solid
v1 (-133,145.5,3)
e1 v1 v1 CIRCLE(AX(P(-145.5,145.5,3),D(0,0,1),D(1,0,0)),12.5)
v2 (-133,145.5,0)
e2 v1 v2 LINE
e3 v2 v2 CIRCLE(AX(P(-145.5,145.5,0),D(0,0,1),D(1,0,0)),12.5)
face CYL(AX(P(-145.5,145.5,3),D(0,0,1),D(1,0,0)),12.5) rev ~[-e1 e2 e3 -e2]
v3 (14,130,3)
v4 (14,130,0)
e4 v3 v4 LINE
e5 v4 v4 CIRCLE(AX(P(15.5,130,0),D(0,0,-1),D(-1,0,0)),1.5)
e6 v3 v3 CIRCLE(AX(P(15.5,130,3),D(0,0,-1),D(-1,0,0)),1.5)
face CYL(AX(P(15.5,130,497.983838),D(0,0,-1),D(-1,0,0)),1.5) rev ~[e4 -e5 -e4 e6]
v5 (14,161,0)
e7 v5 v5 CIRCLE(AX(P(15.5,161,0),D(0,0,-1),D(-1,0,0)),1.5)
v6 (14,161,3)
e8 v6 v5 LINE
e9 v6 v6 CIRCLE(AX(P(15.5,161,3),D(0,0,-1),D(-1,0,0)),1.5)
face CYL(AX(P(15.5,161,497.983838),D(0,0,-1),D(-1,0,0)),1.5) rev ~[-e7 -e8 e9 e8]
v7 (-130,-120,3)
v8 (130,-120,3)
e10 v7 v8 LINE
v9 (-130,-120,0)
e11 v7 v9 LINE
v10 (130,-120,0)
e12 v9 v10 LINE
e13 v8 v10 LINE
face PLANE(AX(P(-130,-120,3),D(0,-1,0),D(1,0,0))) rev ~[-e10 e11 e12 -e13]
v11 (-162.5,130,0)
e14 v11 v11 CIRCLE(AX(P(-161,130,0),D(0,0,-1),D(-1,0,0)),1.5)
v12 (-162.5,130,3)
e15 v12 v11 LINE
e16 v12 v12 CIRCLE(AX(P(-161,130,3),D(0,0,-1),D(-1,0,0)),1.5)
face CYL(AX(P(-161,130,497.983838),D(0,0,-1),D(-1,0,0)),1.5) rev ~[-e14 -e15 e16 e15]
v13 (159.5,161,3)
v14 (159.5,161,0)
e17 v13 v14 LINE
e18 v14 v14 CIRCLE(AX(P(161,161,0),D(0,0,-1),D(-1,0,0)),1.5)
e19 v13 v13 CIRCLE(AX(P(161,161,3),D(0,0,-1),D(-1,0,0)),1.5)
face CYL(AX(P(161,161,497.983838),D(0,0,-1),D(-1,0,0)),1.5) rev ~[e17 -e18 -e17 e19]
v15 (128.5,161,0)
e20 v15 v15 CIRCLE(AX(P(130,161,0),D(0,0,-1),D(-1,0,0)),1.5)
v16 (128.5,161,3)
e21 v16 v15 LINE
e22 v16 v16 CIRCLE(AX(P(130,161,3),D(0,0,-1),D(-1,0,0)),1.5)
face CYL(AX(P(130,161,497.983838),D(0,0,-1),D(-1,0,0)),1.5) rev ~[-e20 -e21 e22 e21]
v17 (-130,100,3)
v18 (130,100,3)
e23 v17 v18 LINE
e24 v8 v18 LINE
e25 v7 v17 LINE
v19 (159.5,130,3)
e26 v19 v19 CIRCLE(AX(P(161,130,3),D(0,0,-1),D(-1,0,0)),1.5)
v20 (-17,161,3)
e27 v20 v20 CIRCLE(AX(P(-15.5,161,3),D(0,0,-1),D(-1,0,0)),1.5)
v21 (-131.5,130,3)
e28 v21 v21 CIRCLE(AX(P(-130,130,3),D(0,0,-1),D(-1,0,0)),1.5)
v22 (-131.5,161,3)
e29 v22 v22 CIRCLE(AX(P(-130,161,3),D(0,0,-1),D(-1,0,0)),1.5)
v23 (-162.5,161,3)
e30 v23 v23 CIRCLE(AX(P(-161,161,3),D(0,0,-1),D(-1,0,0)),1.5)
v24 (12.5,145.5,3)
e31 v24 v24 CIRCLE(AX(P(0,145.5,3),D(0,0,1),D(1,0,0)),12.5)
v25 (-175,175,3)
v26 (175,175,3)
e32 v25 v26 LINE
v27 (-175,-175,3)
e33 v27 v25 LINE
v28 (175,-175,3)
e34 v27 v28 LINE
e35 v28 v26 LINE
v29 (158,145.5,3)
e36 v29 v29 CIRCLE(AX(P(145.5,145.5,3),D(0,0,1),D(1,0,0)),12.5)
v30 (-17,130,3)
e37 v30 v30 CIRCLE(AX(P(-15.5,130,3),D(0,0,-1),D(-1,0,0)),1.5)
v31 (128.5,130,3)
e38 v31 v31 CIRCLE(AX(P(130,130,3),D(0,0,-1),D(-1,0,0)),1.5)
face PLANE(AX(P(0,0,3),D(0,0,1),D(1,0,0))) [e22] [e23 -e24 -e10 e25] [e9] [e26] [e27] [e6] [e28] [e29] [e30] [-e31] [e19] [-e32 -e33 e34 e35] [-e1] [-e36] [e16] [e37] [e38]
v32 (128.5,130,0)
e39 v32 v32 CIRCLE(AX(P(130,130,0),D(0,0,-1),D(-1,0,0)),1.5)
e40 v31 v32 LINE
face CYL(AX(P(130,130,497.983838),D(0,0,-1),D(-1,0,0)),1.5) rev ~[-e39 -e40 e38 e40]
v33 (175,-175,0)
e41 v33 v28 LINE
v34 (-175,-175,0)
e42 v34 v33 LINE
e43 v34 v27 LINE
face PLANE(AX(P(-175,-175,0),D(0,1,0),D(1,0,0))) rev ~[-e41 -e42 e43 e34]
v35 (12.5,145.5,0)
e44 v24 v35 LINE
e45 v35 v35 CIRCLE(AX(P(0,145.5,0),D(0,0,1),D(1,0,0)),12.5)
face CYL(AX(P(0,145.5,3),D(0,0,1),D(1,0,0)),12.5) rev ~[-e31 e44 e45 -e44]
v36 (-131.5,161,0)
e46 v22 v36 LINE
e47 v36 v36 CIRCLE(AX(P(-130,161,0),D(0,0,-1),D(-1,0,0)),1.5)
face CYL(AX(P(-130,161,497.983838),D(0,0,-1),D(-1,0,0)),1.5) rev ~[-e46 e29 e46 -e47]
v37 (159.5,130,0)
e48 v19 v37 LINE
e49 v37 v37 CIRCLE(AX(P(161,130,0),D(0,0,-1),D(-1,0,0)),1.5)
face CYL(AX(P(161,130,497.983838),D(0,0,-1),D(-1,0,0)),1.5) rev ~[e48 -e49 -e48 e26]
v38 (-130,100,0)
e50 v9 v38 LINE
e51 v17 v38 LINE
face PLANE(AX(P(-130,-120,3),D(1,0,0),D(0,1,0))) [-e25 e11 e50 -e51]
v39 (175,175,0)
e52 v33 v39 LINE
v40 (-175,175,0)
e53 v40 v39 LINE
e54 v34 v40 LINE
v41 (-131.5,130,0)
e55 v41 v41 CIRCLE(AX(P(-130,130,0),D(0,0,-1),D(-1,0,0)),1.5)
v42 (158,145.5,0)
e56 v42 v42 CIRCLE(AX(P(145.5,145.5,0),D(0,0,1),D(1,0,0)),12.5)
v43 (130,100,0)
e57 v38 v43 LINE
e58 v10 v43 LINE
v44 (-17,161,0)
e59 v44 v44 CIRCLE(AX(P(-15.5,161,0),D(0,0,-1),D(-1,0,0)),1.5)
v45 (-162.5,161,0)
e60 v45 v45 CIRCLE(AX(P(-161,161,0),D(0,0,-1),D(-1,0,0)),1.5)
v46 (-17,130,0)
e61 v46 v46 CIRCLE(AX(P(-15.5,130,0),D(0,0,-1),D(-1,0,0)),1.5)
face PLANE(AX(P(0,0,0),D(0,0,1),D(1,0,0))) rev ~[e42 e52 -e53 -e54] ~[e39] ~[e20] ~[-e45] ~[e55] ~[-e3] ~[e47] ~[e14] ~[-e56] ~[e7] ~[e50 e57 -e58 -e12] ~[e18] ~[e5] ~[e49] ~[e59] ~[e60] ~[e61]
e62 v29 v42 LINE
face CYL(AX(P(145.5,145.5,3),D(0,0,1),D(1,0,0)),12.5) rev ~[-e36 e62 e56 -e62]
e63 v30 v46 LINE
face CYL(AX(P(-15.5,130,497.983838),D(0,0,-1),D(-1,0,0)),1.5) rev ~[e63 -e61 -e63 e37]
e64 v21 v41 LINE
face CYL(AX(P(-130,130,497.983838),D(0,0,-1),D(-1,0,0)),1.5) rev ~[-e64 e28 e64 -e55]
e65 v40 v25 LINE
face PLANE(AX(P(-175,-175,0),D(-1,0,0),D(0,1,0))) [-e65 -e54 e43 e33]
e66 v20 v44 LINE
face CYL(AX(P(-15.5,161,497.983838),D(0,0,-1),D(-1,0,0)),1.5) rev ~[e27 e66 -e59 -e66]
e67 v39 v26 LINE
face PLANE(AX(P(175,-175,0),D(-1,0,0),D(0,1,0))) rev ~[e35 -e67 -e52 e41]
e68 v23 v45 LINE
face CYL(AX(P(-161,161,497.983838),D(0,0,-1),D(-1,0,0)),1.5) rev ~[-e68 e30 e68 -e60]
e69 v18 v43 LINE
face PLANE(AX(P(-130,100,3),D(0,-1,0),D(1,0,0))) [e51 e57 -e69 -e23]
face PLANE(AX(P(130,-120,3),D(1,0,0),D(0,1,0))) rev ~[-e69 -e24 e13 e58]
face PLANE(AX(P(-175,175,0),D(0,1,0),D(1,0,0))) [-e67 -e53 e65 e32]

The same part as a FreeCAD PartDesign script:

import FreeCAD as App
import Part
import Sketcher

V = App.Vector

doc = App.newDocument("Part")
params = doc.addObject("Spreadsheet::Sheet", "Params")
for row, (alias, value) in enumerate([
    ("sketch1_width", "350 mm"),
    ("pad1_length", "3 mm"),
    ("sketch2_width", "260 mm"),
    ("sketch2_height", "220 mm"),
    ("pocket1_length", "25 mm"),
    ("sketch3_diameter", "3 mm"),
    ("hole_diameter", "3 mm"),
    ("sketch4_diameter", "25 mm"),
    ("pocket2_length", "25 mm"),
], start=1):
    params.set(f"A{row}", alias)
    params.set(f"B{row}", "=" + value)
    params.setAlias(f"B{row}", alias)

body = doc.addObject("PartDesign::Body", "Body")

# Sketch on XY plane
sketch1 = body.newObject("Sketcher::SketchObject", "Sketch")
sketch1.AttachmentSupport = (doc.getObject("XY_Plane"), [""])
sketch1.MapMode = "FlatFace"
sketch1.addGeometry([
    Part.LineSegment(V(-175, 175, 0), V(-175, -175, 0)),
    Part.LineSegment(V(-175, -175, 0), V(175, -175, 0)),
    Part.LineSegment(V(175, -175, 0), V(175, 175, 0)),
    Part.LineSegment(V(175, 175, 0), V(-175, 175, 0)),
], False)
sketch1.addConstraint([
    Sketcher.Constraint("Coincident", 0, 2, 1, 1),
    Sketcher.Constraint("Coincident", 1, 2, 2, 1),
    Sketcher.Constraint("Coincident", 2, 2, 3, 1),
    Sketcher.Constraint("Coincident", 3, 2, 0, 1),
    Sketcher.Constraint("Vertical", 0),
    Sketcher.Constraint("Horizontal", 1),
    Sketcher.Constraint("Vertical", 2),
    Sketcher.Constraint("Horizontal", 3),
    Sketcher.Constraint("Symmetric", 0, 2, 2, 2, -1, 1),
    Sketcher.Constraint("Equal", 3, 0),
    Sketcher.Constraint("DistanceX", 1, 1, 1, 2, 350.0),
])
sketch1.setExpression("Constraints[10]", "Params.sketch1_width")
pad1 = body.newObject("PartDesign::Pad", "Pad")
pad1.Profile = sketch1
pad1.setExpression("Length", "Params.pad1_length")

# Sketch on XY plane
sketch2 = body.newObject("Sketcher::SketchObject", "Sketch001")
sketch2.AttachmentSupport = (doc.getObject("XY_Plane"), [""])
sketch2.MapMode = "FlatFace"
sketch2.AttachmentOffset = App.Placement(V(0, 0, 3), App.Rotation())
sketch2.addGeometry([
    Part.LineSegment(V(-130, 100, 0), V(-130, -120, 0)),
    Part.LineSegment(V(-130, -120, 0), V(130, -120, 0)),
    Part.LineSegment(V(130, -120, 0), V(130, 100, 0)),
    Part.LineSegment(V(130, 100, 0), V(-130, 100, 0)),
], False)
sketch2.addConstraint([
    Sketcher.Constraint("Coincident", 0, 2, 1, 1),
    Sketcher.Constraint("Coincident", 1, 2, 2, 1),
    Sketcher.Constraint("Coincident", 2, 2, 3, 1),
    Sketcher.Constraint("Coincident", 3, 2, 0, 1),
    Sketcher.Constraint("Vertical", 0),
    Sketcher.Constraint("Horizontal", 1),
    Sketcher.Constraint("Vertical", 2),
    Sketcher.Constraint("Horizontal", 3),
    Sketcher.Constraint("DistanceX", 1, 1, 1, 2, 260.0),
    Sketcher.Constraint("DistanceY", 0, 2, 0, 1, 220.0),
    Sketcher.Constraint("DistanceX", 0, 2, -1, 1, 130.0),
    Sketcher.Constraint("DistanceY", 0, 2, -1, 1, 120.0),
])
sketch2.setExpression("Constraints[8]", "Params.sketch2_width")
sketch2.setExpression("Constraints[9]", "Params.sketch2_height")
pocket1 = body.newObject("PartDesign::Pocket", "Pocket")
pocket1.Profile = sketch2
pocket1.setExpression("Length", "Params.pocket1_length")

# Sketch on XY plane
sketch3 = body.newObject("Sketcher::SketchObject", "Sketch002")
sketch3.AttachmentSupport = (doc.getObject("XY_Plane"), [""])
sketch3.MapMode = "FlatFace"
sketch3.AttachmentOffset = App.Placement(V(0, 0, 3), App.Rotation())
sketch3.addGeometry([
    Part.Circle(V(-161, 161, 0), V(0, 0, 1), 1.5),  # 0
    Part.Circle(V(-161, 130, 0), V(0, 0, 1), 1.5),  # 1
    Part.Circle(V(-130, 130, 0), V(0, 0, 1), 1.5),  # 2
    Part.Circle(V(-130, 161, 0), V(0, 0, 1), 1.5),  # 3
    Part.Circle(V(130, 161, 0), V(0, 0, 1), 1.5),  # 4
    Part.Circle(V(161, 161, 0), V(0, 0, 1), 1.5),  # 5
    Part.Circle(V(161, 130, 0), V(0, 0, 1), 1.5),  # 6
    Part.Circle(V(130, 130, 0), V(0, 0, 1), 1.5),  # 7
    Part.Circle(V(-15.5, 161, 0), V(0, 0, 1), 1.5),  # 8
    Part.Circle(V(-15.5, 130, 0), V(0, 0, 1), 1.5),  # 9
    Part.Circle(V(15.5, 130, 0), V(0, 0, 1), 1.5),  # 10
    Part.Circle(V(15.5, 161, 0), V(0, 0, 1), 1.5),  # 11
], False)
sketch3.addConstraint([
    Sketcher.Constraint("Equal", 0, 1),
    Sketcher.Constraint("Equal", 1, 2),
    Sketcher.Constraint("Equal", 2, 3),
    Sketcher.Constraint("Equal", 3, 4),
    Sketcher.Constraint("Equal", 4, 5),
    Sketcher.Constraint("Equal", 5, 6),
    Sketcher.Constraint("Equal", 6, 7),
    Sketcher.Constraint("Equal", 7, 8),
    Sketcher.Constraint("Equal", 8, 9),
    Sketcher.Constraint("Equal", 9, 10),
    Sketcher.Constraint("Equal", 10, 11),
    Sketcher.Constraint("Symmetric", 3, 3, 4, 3, -2),
    Sketcher.Constraint("Symmetric", 0, 3, 5, 3, -2),
    Sketcher.Constraint("Symmetric", 1, 3, 6, 3, -2),
    Sketcher.Constraint("Symmetric", 2, 3, 7, 3, -2),
    Sketcher.Constraint("Symmetric", 9, 3, 10, 3, -2),
    Sketcher.Constraint("Symmetric", 8, 3, 11, 3, -2),
    Sketcher.Constraint("Horizontal", 1, 3, 2, 3),
    Sketcher.Constraint("Horizontal", 0, 3, 3, 3),
    Sketcher.Constraint("Horizontal", 5, 3, 8, 3),
    Sketcher.Constraint("Horizontal", 7, 3, 9, 3),
    Sketcher.Constraint("Vertical", 0, 3, 1, 3),
    Sketcher.Constraint("Vertical", 2, 3, 3, 3),
    Sketcher.Constraint("Vertical", 8, 3, 9, 3),
    Sketcher.Constraint("Diameter", 0, 3.0),
    Sketcher.Constraint("DistanceX", 0, 3, -1, 1, 161.0),
    Sketcher.Constraint("DistanceY", -1, 1, 0, 3, 161.0),
    Sketcher.Constraint("DistanceY", -1, 1, 1, 3, 130.0),
    Sketcher.Constraint("DistanceX", 2, 3, -1, 1, 130.0),
    Sketcher.Constraint("DistanceX", 9, 3, 10, 3, 31.0),
])
sketch3.setExpression("Constraints[24]", "Params.sketch3_diameter")
doc.recompute()
hole = body.newObject("PartDesign::Hole", "Hole")
hole.Profile = sketch3
hole.ThreadType = "None"
hole.setExpression("Diameter", "Params.hole_diameter")
hole.DepthType = "ThroughAll"

# Sketch on XY plane
sketch4 = body.newObject("Sketcher::SketchObject", "Sketch003")
sketch4.AttachmentSupport = (doc.getObject("XY_Plane"), [""])
sketch4.MapMode = "FlatFace"
sketch4.AttachmentOffset = App.Placement(V(0, 0, 3), App.Rotation())
sketch4.addGeometry([
    Part.Circle(V(-146, 146, 0), V(0, 0, 1), 12),
    Part.Circle(V(146, 146, 0), V(0, 0, 1), 12),
    Part.Circle(V(0, 146, 0), V(0, 0, 1), 12),
], False)
sketch4.addConstraint([
    Sketcher.Constraint("Equal", 0, 1),
    Sketcher.Constraint("Equal", 1, 2),
    Sketcher.Constraint("Symmetric", 0, 3, 1, 3, -2),
    Sketcher.Constraint("PointOnObject", 2, 3, -2),
    Sketcher.Constraint("Horizontal", 1, 3, 2, 3),
    Sketcher.Constraint("Diameter", 0, 25.0),
    Sketcher.Constraint("DistanceX", 0, 3, 1, 3, 291.0),
    Sketcher.Constraint("DistanceY", -1, 1, 0, 3, 145.5),
])
sketch4.setExpression("Constraints[5]", "Params.sketch4_diameter")
pocket2 = body.newObject("PartDesign::Pocket", "Pocket001")
pocket2.Profile = sketch4
pocket2.setExpression("Length", "Params.pocket2_length")

doc.recompute()
